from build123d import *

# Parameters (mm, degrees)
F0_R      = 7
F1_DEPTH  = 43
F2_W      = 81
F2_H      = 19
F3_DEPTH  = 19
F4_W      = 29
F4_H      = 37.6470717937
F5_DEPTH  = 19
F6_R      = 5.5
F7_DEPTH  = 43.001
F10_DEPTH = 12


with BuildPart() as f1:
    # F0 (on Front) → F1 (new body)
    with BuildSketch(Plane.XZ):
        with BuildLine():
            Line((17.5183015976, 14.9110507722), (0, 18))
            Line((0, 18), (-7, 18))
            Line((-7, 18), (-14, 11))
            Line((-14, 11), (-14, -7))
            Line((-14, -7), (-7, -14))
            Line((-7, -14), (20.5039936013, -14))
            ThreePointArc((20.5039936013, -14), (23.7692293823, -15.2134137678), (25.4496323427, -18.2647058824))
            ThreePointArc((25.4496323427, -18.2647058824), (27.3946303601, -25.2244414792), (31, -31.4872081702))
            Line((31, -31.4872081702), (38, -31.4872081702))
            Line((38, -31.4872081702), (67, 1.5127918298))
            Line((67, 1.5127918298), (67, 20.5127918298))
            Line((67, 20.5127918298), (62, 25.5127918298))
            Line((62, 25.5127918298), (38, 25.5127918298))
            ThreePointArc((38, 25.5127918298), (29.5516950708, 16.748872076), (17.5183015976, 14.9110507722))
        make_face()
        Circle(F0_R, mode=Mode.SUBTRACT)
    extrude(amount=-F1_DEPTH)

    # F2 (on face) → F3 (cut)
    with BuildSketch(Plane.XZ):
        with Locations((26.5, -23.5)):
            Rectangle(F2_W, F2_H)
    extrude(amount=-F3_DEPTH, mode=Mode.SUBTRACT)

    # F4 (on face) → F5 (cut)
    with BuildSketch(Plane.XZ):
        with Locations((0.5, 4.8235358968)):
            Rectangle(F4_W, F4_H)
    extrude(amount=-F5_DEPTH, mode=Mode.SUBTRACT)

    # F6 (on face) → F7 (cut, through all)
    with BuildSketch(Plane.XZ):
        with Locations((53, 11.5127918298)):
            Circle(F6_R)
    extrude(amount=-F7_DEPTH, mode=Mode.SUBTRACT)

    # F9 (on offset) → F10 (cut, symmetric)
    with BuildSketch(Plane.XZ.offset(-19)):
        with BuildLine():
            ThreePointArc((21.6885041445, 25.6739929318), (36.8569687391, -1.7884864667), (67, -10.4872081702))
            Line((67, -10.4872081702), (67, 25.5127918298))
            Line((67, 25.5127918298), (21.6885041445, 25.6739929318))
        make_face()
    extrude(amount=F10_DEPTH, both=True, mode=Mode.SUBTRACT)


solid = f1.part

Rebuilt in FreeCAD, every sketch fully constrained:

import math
import FreeCAD as App
import Part
import Sketcher
Q = App.Units.Quantity

doc = App.newDocument("Part")
params = doc.addObject("Spreadsheet::Sheet", "Params")
for row, (alias, value) in enumerate([
    ("sketch1_diameter", "14 mm"),
    ("sketch1_radius", "5 mm"),
    ("sketch1_radius2", "29 mm"),
    ("sketch1_radius3", "19 mm"),
    ("sketch1_width", "7 mm"),
    ("pad1_length", "43 mm"),
    ("sketch2_width", "81 mm"),
    ("sketch2_height", "19 mm"),
    ("pocket1_length", "19 mm"),
    ("sketch3_width", "29 mm"),
    ("pocket2_length", "19 mm"),
    ("sketch4_diameter", "11 mm"),
    ("sketch5_radius", "41 mm"),
    ("sketch5_height", "36 mm"),
    ("pocket4_length", "24 mm"),
], start=1):
    params.set(f"A{row}", alias)
    params.set(f"B{row}", "=" + value)
    params.setAlias(f"B{row}", alias)

body = doc.addObject("PartDesign::Body", "Body")

# Sketch on XZ plane
sketch1 = body.newObject("Sketcher::SketchObject", "Sketch")
sketch1.AttachmentSupport = (doc.getObject("XZ_Plane"), [""])
sketch1.MapMode = "FlatFace"
sketch1.addGeometry(Part.LineSegment(App.Vector(17.518302, 14.911051, 0), App.Vector(0, 18, 0)), False)
sketch1.addGeometry(Part.LineSegment(App.Vector(0, 18, 0), App.Vector(-7, 18, 0)), False)
sketch1.addGeometry(Part.LineSegment(App.Vector(-7, 18, 0), App.Vector(-14, 11, 0)), False)
sketch1.addGeometry(Part.LineSegment(App.Vector(-14, 11, 0), App.Vector(-14, -7, 0)), False)
sketch1.addGeometry(Part.LineSegment(App.Vector(-14, -7, 0), App.Vector(-7, -14, 0)), False)
sketch1.addGeometry(Part.LineSegment(App.Vector(-7, -14, 0), App.Vector(20.503994, -14, 0)), False)
sketch1.addGeometry(Part.ArcOfCircle(Part.Circle(App.Vector(20.503994, -19, 0), App.Vector(0, 0, 1), 5), math.radians(8.456519), math.radians(90)), False)
sketch1.addGeometry(Part.ArcOfCircle(Part.Circle(App.Vector(54.134337, -14, 0), App.Vector(0, 0, 1), 29), math.radians(-171.543481), math.radians(-142.914424)), False)
sketch1.addGeometry(Part.LineSegment(App.Vector(31, -31.487208, 0), App.Vector(38, -31.487208, 0)), False)
sketch1.addGeometry(Part.LineSegment(App.Vector(38, -31.487208, 0), App.Vector(67, 1.512792, 0)), False)
sketch1.addGeometry(Part.LineSegment(App.Vector(67, 1.512792, 0), App.Vector(67, 20.512792, 0)), False)
sketch1.addGeometry(Part.LineSegment(App.Vector(67, 20.512792, 0), App.Vector(62, 25.512792, 0)), False)
sketch1.addGeometry(Part.LineSegment(App.Vector(62, 25.512792, 0), App.Vector(38, 25.512792, 0)), False)
sketch1.addGeometry(Part.ArcOfCircle(Part.Circle(App.Vector(20.817617, 33.622398, 0), App.Vector(0, 0, 1), 19), math.radians(-100), math.radians(-25.266005)), False)
sketch1.addGeometry(Part.Circle(App.Vector(0, 0, 0), App.Vector(0, 0, 1), 7), False)
sketch1.addConstraint(Sketcher.Constraint("Coincident", 0, 2, 1, 1))
sketch1.addConstraint(Sketcher.Constraint("Coincident", 1, 2, 2, 1))
sketch1.addConstraint(Sketcher.Constraint("Coincident", 2, 2, 3, 1))
sketch1.addConstraint(Sketcher.Constraint("Coincident", 3, 2, 4, 1))
sketch1.addConstraint(Sketcher.Constraint("Coincident", 4, 2, 5, 1))
sketch1.addConstraint(Sketcher.Constraint("Tangent", 5, 2, 6, 2))
sketch1.addConstraint(Sketcher.Constraint("Tangent", 6, 1, 7, 1))
sketch1.addConstraint(Sketcher.Constraint("Coincident", 7, 2, 8, 1))
sketch1.addConstraint(Sketcher.Constraint("Coincident", 8, 2, 9, 1))
sketch1.addConstraint(Sketcher.Constraint("Coincident", 9, 2, 10, 1))
sketch1.addConstraint(Sketcher.Constraint("Coincident", 10, 2, 11, 1))
sketch1.addConstraint(Sketcher.Constraint("Coincident", 11, 2, 12, 1))
sketch1.addConstraint(Sketcher.Constraint("Coincident", 12, 2, 13, 2))
sketch1.addConstraint(Sketcher.Constraint("Tangent", 13, 1, 0, 1))
sketch1.addConstraint(Sketcher.Constraint("Horizontal", 1))
sketch1.addConstraint(Sketcher.Constraint("Vertical", 3))
sketch1.addConstraint(Sketcher.Constraint("Horizontal", 5))
sketch1.addConstraint(Sketcher.Constraint("Horizontal", 8))
sketch1.addConstraint(Sketcher.Constraint("Vertical", 10))
sketch1.addConstraint(Sketcher.Constraint("Horizontal", 12))
sketch1.addConstraint(Sketcher.Constraint("Coincident", 14, 3, -1, 1))
sketch1.addConstraint(Sketcher.Constraint("PointOnObject", 0, 2, -2))
sketch1.addConstraint(Sketcher.Constraint("Perpendicular", 2, 4))
sketch1.addConstraint(Sketcher.Constraint("Parallel", 4, 11))
sketch1.addConstraint(Sketcher.Constraint("Horizontal", 7, 3, 4, 2))
sketch1.addConstraint(Sketcher.Constraint("Vertical", 1, 2, 4, 2))
sketch1.addConstraint(Sketcher.Constraint("Vertical", 8, 2, 12, 2))
sketch1.addConstraint(Sketcher.Constraint("Equal", 1, 8))
sketch1.addConstraint(Sketcher.Constraint("Equal", 2, 4))
sketch1.addConstraint(Sketcher.Constraint("Diameter", 14, Q("14 mm")))
sketch1.addConstraint(Sketcher.Constraint("Radius", 6, Q("5 mm")))
sketch1.addConstraint(Sketcher.Constraint("Radius", 7, Q("29 mm")))
sketch1.addConstraint(Sketcher.Constraint("Radius", 13, Q("19 mm")))
sketch1.addConstraint(Sketcher.Constraint("DistanceX", 1, 2, 1, 1, Q("7 mm")))
sketch1.addConstraint(Sketcher.Constraint("DistanceX", 12, 2, 12, 1, Q("24 mm")))
sketch1.addConstraint(Sketcher.Constraint("DistanceY", 3, 2, 3, 1, Q("18 mm")))
sketch1.addConstraint(Sketcher.Constraint("DistanceY", 10, 1, 10, 2, Q("19 mm")))
sketch1.addConstraint(Sketcher.Constraint("Angle", 0, Q("170 deg")))
sketch1.addConstraint(Sketcher.Constraint("DistanceY", 6, 3, -1, 1, Q("19 mm")))
sketch1.addConstraint(Sketcher.Constraint("DistanceY", -1, 1, 0, 2, Q("18 mm")))
sketch1.addConstraint(Sketcher.Constraint("DistanceX", -1, 1, 7, 2, Q("31 mm")))
sketch1.addConstraint(Sketcher.Constraint("DistanceX", -1, 1, 9, 2, Q("67 mm")))
sketch1.addConstraint(Sketcher.Constraint("DistanceY", 8, 2, 9, 2, Q("33 mm")))
sketch1.addConstraint(Sketcher.Constraint("DistanceY", -1, 1, 13, 3, Q("33.622398 mm")))
sketch1.setExpression("Constraints[29]", "Params.sketch1_diameter")
sketch1.setExpression("Constraints[30]", "Params.sketch1_radius")
sketch1.setExpression("Constraints[31]", "Params.sketch1_radius2")
sketch1.setExpression("Constraints[32]", "Params.sketch1_radius3")
sketch1.setExpression("Constraints[33]", "Params.sketch1_width")
pad1 = body.newObject("PartDesign::Pad", "Pad")
pad1.Profile = sketch1
pad1.setExpression("Length", "Params.pad1_length")
pad1.Reversed = True

# Sketch on XZ plane
sketch2 = body.newObject("Sketcher::SketchObject", "Sketch001")
sketch2.AttachmentSupport = (doc.getObject("XZ_Plane"), [""])
sketch2.MapMode = "FlatFace"
sketch2.addGeometry(Part.LineSegment(App.Vector(-14, -14, 0), App.Vector(-14, -33, 0)), False)
sketch2.addGeometry(Part.LineSegment(App.Vector(-14, -33, 0), App.Vector(67, -33, 0)), False)
sketch2.addGeometry(Part.LineSegment(App.Vector(67, -33, 0), App.Vector(67, -14, 0)), False)
sketch2.addGeometry(Part.LineSegment(App.Vector(67, -14, 0), App.Vector(-14, -14, 0)), False)
sketch2.addConstraint(Sketcher.Constraint("Coincident", 0, 2, 1, 1))
sketch2.addConstraint(Sketcher.Constraint("Coincident", 1, 2, 2, 1))
sketch2.addConstraint(Sketcher.Constraint("Coincident", 2, 2, 3, 1))
sketch2.addConstraint(Sketcher.Constraint("Coincident", 3, 2, 0, 1))
sketch2.addConstraint(Sketcher.Constraint("Vertical", 0))
sketch2.addConstraint(Sketcher.Constraint("Horizontal", 1))
sketch2.addConstraint(Sketcher.Constraint("Vertical", 2))
sketch2.addConstraint(Sketcher.Constraint("Horizontal", 3))
sketch2.addConstraint(Sketcher.Constraint("DistanceX", 1, 1, 1, 2, Q("81 mm")))
sketch2.addConstraint(Sketcher.Constraint("DistanceY", 0, 2, 0, 1, Q("19 mm")))
sketch2.addConstraint(Sketcher.Constraint("DistanceX", 0, 2, -1, 1, Q("14 mm")))
sketch2.addConstraint(Sketcher.Constraint("DistanceY", 0, 2, -1, 1, Q("33 mm")))
sketch2.setExpression("Constraints[8]", "Params.sketch2_width")
sketch2.setExpression("Constraints[9]", "Params.sketch2_height")
pocket1 = body.newObject("PartDesign::Pocket", "Pocket")
pocket1.Profile = sketch2
pocket1.setExpression("Length", "Params.pocket1_length")

# Sketch on XZ plane
sketch3 = body.newObject("Sketcher::SketchObject", "Sketch002")
sketch3.AttachmentSupport = (doc.getObject("XZ_Plane"), [""])
sketch3.MapMode = "FlatFace"
sketch3.addGeometry(Part.LineSegment(App.Vector(-14, 23.647072, 0), App.Vector(-14, -14, 0)), False)
sketch3.addGeometry(Part.LineSegment(App.Vector(-14, -14, 0), App.Vector(15, -14, 0)), False)
sketch3.addGeometry(Part.LineSegment(App.Vector(15, -14, 0), App.Vector(15, 23.647072, 0)), False)
sketch3.addGeometry(Part.LineSegment(App.Vector(15, 23.647072, 0), App.Vector(-14, 23.647072, 0)), False)
sketch3.addConstraint(Sketcher.Constraint("Coincident", 0, 2, 1, 1))
sketch3.addConstraint(Sketcher.Constraint("Coincident", 1, 2, 2, 1))
sketch3.addConstraint(Sketcher.Constraint("Coincident", 2, 2, 3, 1))
sketch3.addConstraint(Sketcher.Constraint("Coincident", 3, 2, 0, 1))
sketch3.addConstraint(Sketcher.Constraint("Vertical", 0))
sketch3.addConstraint(Sketcher.Constraint("Horizontal", 1))
sketch3.addConstraint(Sketcher.Constraint("Vertical", 2))
sketch3.addConstraint(Sketcher.Constraint("Horizontal", 3))
sketch3.addConstraint(Sketcher.Constraint("DistanceX", 1, 1, 1, 2, Q("29 mm")))
sketch3.addConstraint(Sketcher.Constraint("DistanceX", 0, 2, -1, 1, Q("14 mm")))
sketch3.addConstraint(Sketcher.Constraint("DistanceY", 0, 2, -1, 1, Q("14 mm")))
sketch3.addConstraint(Sketcher.Constraint("DistanceY", 0, 2, 0, 1, Q("37.647072 mm")))
sketch3.setExpression("Constraints[8]", "Params.sketch3_width")
pocket2 = body.newObject("PartDesign::Pocket", "Pocket001")
pocket2.Profile = sketch3
pocket2.setExpression("Length", "Params.pocket2_length")

# Sketch on XZ plane
sketch4 = body.newObject("Sketcher::SketchObject", "Sketch003")
sketch4.AttachmentSupport = (doc.getObject("XZ_Plane"), [""])
sketch4.MapMode = "FlatFace"
sketch4.addGeometry(Part.Circle(App.Vector(53, 11.512792, 0), App.Vector(0, 0, 1), 5.5), False)
sketch4.addConstraint(Sketcher.Constraint("Diameter", 0, Q("11 mm")))
sketch4.addConstraint(Sketcher.Constraint("DistanceX", -1, 1, 0, 3, Q("53 mm")))
sketch4.addConstraint(Sketcher.Constraint("DistanceY", -1, 1, 0, 3, Q("11.512792 mm")))
sketch4.setExpression("Constraints[0]", "Params.sketch4_diameter")
pocket3 = body.newObject("PartDesign::Pocket", "Pocket002")
pocket3.Profile = sketch4
pocket3.Type = "ThroughAll"

# Sketch on XZ plane
sketch5 = body.newObject("Sketcher::SketchObject", "Sketch004")
sketch5.AttachmentSupport = (doc.getObject("XZ_Plane"), [""])
sketch5.MapMode = "FlatFace"
sketch5.AttachmentOffset = App.Placement(App.Vector(0, 0, -19), App.Rotation())
sketch5.addGeometry(Part.ArcOfCircle(Part.Circle(App.Vector(62.4315, 30.25747, 0), App.Vector(0, 0, 1), 41), math.radians(-173.581366), math.radians(-83.602428)), False)
sketch5.addGeometry(Part.LineSegment(App.Vector(67, -10.487208, 0), App.Vector(67, 25.512792, 0)), False)
sketch5.addGeometry(Part.LineSegment(App.Vector(67, 25.512792, 0), App.Vector(21.688504, 25.673993, 0)), False)
sketch5.addConstraint(Sketcher.Constraint("Coincident", 0, 2, 1, 1))
sketch5.addConstraint(Sketcher.Constraint("Coincident", 1, 2, 2, 1))
sketch5.addConstraint(Sketcher.Constraint("Coincident", 2, 2, 0, 1))
sketch5.addConstraint(Sketcher.Constraint("Vertical", 1))
sketch5.addConstraint(Sketcher.Constraint("Radius", 0, Q("41 mm")))
sketch5.addConstraint(Sketcher.Constraint("DistanceY", 1, 1, 1, 2, Q("36 mm")))
sketch5.addConstraint(Sketcher.Constraint("DistanceX", -1, 1, 0, 2, Q("67 mm")))
sketch5.addConstraint(Sketcher.Constraint("DistanceX", -1, 1, 0, 3, Q("62.4315 mm")))
sketch5.addConstraint(Sketcher.Constraint("DistanceY", 1, 2, 2, 2, Q("0.161201 mm")))
sketch5.addConstraint(Sketcher.Constraint("DistanceY", -1, 1, 0, 3, Q("30.25747 mm")))
sketch5.setExpression("Constraints[4]", "Params.sketch5_radius")
sketch5.setExpression("Constraints[5]", "Params.sketch5_height")
pocket4 = body.newObject("PartDesign::Pocket", "Pocket003")
pocket4.Profile = sketch5
pocket4.setExpression("Length", "Params.pocket4_length")
pocket4.Midplane = True

doc.recompute()
